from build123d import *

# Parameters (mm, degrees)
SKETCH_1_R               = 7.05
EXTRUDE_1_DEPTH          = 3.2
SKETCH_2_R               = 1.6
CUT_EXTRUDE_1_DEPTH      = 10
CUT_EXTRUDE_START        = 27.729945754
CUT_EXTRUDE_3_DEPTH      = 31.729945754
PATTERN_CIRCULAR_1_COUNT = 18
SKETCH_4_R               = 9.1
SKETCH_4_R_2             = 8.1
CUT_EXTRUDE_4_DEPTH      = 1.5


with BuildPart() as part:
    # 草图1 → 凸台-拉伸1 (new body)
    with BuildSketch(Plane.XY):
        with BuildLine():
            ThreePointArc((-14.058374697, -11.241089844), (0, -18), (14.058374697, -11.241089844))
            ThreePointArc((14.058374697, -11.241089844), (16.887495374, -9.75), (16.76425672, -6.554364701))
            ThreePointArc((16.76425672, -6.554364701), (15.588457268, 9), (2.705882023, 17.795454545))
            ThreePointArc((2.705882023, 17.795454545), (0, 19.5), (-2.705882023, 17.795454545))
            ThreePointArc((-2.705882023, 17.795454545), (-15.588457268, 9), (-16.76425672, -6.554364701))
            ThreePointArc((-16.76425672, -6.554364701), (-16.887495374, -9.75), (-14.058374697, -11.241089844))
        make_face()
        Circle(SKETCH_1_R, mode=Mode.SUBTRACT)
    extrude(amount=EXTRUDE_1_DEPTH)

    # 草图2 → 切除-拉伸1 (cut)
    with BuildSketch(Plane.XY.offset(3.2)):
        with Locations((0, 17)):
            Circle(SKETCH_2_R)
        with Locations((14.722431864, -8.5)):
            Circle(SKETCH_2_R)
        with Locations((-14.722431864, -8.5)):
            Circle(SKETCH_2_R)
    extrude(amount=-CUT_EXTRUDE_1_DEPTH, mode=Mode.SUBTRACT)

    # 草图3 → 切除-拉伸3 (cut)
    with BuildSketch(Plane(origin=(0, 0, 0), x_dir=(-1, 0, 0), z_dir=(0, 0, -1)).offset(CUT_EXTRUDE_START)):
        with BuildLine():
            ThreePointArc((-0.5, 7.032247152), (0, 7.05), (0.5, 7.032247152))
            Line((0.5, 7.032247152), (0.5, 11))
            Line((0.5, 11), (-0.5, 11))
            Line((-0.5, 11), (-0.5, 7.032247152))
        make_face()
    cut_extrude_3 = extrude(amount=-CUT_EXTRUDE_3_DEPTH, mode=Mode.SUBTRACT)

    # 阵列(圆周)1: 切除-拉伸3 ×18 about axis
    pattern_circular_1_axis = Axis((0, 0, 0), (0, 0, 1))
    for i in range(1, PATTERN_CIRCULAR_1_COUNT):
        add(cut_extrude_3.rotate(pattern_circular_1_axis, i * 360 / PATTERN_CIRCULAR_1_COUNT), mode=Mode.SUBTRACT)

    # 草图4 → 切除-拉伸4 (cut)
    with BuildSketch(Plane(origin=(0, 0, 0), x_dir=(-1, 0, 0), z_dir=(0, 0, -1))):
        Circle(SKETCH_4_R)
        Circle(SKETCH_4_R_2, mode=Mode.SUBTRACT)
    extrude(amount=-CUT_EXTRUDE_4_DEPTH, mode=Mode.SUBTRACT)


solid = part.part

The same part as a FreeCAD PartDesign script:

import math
import FreeCAD as App
import Part
import Sketcher
from FreeCAD import Vector
Q = App.Units.Quantity

doc = App.newDocument("Part")
params = doc.addObject("Spreadsheet::Sheet", "Params")
for row, (alias, value) in enumerate([
    ("sketch1_radius", "18 mm"),
    ("sketch1_radius2", "3 mm"),
    ("sketch1_diameter", "14.1 mm"),
    ("pad1_length", "3.2 mm"),
    ("sketch2_diameter", "3.2 mm"),
    ("pocket1_length", "10 mm"),
    ("sketch3_width", "1 mm"),
    ("sketch3_radius", "7.05 mm"),
    ("pocket2_length", "31.729946 mm"),
    ("sketch4_diameter", "18.2 mm"),
    ("sketch4_diameter2", "16.2 mm"),
    ("pocket3_length", "1.5 mm"),
], start=1):
    params.set(f"A{row}", alias)
    params.set(f"B{row}", "=" + value)
    params.setAlias(f"B{row}", alias)

body = doc.addObject("PartDesign::Body", "Body")

sketch1 = body.newObject("Sketcher::SketchObject", "Sketch")
sketch1.AttachmentSupport = (doc.getObject("XY_Plane"), [""])
sketch1.MapMode = "FlatFace"
sketch1.addGeometry([
    Part.ArcOfCircle(Part.Circle(Vector(0, 0, 0), Vector(0, 0, 1), 18), math.radians(-141), math.radians(-39)),
    Part.ArcOfCircle(Part.Circle(Vector(14.3, -8.2, 0), Vector(0, 0, 1), 3), math.radians(-94), math.radians(34)),
    Part.ArcOfCircle(Part.Circle(Vector(0, 0, 0), Vector(0, 0, 1), 18), math.radians(-21), math.radians(81)),
    Part.ArcOfCircle(Part.Circle(Vector(0, 16.5, 0), Vector(0, 0, 1), 3), math.radians(26), math.radians(154)),
    Part.ArcOfCircle(Part.Circle(Vector(0, 0, 0), Vector(0, 0, 1), 18), math.radians(99), math.radians(201)),
    Part.ArcOfCircle(Part.Circle(Vector(-14.3, -8.2, 0), Vector(0, 0, 1), 3), math.radians(146), math.radians(274)),
    Part.Circle(Vector(0, 0, 0), Vector(0, 0, 1), 7),
], False)
sketch1.addConstraint([
    Sketcher.Constraint("Coincident", 0, 2, 1, 1),
    Sketcher.Constraint("Coincident", 1, 2, 2, 1),
    Sketcher.Constraint("Coincident", 2, 2, 3, 1),
    Sketcher.Constraint("Coincident", 3, 2, 4, 1),
    Sketcher.Constraint("Coincident", 4, 2, 5, 1),
    Sketcher.Constraint("Coincident", 5, 2, 0, 1),
    Sketcher.Constraint("Coincident", 0, 3, -1, 1),
    Sketcher.Constraint("Coincident", 2, 3, -1, 1),
    Sketcher.Constraint("Coincident", 4, 3, -1, 1),
    Sketcher.Constraint("Coincident", 6, 3, -1, 1),
    Sketcher.Constraint("Equal", 0, 2),
    Sketcher.Constraint("Equal", 1, 3),
    Sketcher.Constraint("Equal", 2, 4),
    Sketcher.Constraint("Equal", 3, 5),
    Sketcher.Constraint("Symmetric", 1, 3, 5, 3, -2),
    Sketcher.Constraint("PointOnObject", 3, 3, -2),
    Sketcher.Constraint("Radius", 0, Q("18 mm")),
    Sketcher.Constraint("Radius", 1, Q("3 mm")),
    Sketcher.Constraint("Diameter", 6, Q("14.1 mm")),
    Sketcher.Constraint("DistanceY", -1, 1, 3, 3, Q("16.5 mm")),
    Sketcher.Constraint("DistanceY", 1, 3, -1, 1, Q("8.25 mm")),
    Sketcher.Constraint("DistanceX", -1, 1, 1, 3, Q("14.289419 mm")),
])
sketch1.setExpression("Constraints[16]", "Params.sketch1_radius")
sketch1.setExpression("Constraints[17]", "Params.sketch1_radius2")
sketch1.setExpression("Constraints[18]", "Params.sketch1_diameter")
pad1 = body.newObject("PartDesign::Pad", "Pad")
pad1.Profile = sketch1
pad1.setExpression("Length", "Params.pad1_length")

sketch2 = body.newObject("Sketcher::SketchObject", "Sketch001")
sketch2.AttachmentSupport = (doc.getObject("XY_Plane"), [""])
sketch2.MapMode = "FlatFace"
sketch2.AttachmentOffset = App.Placement(Vector(0, 0, 3.2), App.Rotation())
sketch2.addGeometry([
    Part.Circle(Vector(0, 17, 0), Vector(0, 0, 1), 1.6),
    Part.Circle(Vector(14.7, -8.5, 0), Vector(0, 0, 1), 1.6),
    Part.Circle(Vector(-14.7, -8.5, 0), Vector(0, 0, 1), 1.6),
], False)
sketch2.addConstraint([
    Sketcher.Constraint("Equal", 0, 1),
    Sketcher.Constraint("Equal", 1, 2),
    Sketcher.Constraint("Symmetric", 1, 3, 2, 3, -2),
    Sketcher.Constraint("PointOnObject", 0, 3, -2),
    Sketcher.Constraint("Diameter", 0, Q("3.2 mm")),
    Sketcher.Constraint("DistanceY", -1, 1, 0, 3, Q("17 mm")),
    Sketcher.Constraint("DistanceY", 1, 3, -1, 1, Q("8.5 mm")),
    Sketcher.Constraint("DistanceX", -1, 1, 1, 3, Q("14.722432 mm")),
])
sketch2.setExpression("Constraints[4]", "Params.sketch2_diameter")
pocket1 = body.newObject("PartDesign::Pocket", "Pocket")
pocket1.Profile = sketch2
pocket1.setExpression("Length", "Params.pocket1_length")

sketch3 = body.newObject("Sketcher::SketchObject", "Sketch002")
sketch3.AttachmentSupport = (doc.getObject("XY_Plane"), [""])
sketch3.MapMode = "FlatFace"
sketch3.AttachmentOffset = App.Placement(Vector(0, 0, -27.729946), App.Rotation())
sketch3.addGeometry([
    Part.ArcOfCircle(Part.Circle(Vector(0, 0, 0), Vector(0, 0, 1), 7.1), math.radians(85.93), math.radians(94.07)),
    Part.LineSegment(Vector(-0.5, 7, 0), Vector(-0.5, 11, 0)),
    Part.LineSegment(Vector(-0.5, 11, 0), Vector(0.5, 11, 0)),
    Part.LineSegment(Vector(0.5, 11, 0), Vector(0.5, 7, 0)),
], False)
sketch3.addConstraint([
    Sketcher.Constraint("Coincident", 0, 2, 1, 1),
    Sketcher.Constraint("Coincident", 1, 2, 2, 1),
    Sketcher.Constraint("Coincident", 2, 2, 3, 1),
    Sketcher.Constraint("Coincident", 3, 2, 0, 1),
    Sketcher.Constraint("Vertical", 1),
    Sketcher.Constraint("Horizontal", 2),
    Sketcher.Constraint("Vertical", 3),
    Sketcher.Constraint("Coincident", 0, 3, -1, 1),
    Sketcher.Constraint("Horizontal", 0, 2, 3, 2),
    Sketcher.Constraint("DistanceX", 2, 1, 2, 2, Q("1 mm")),
    Sketcher.Constraint("Radius", 0, Q("7.05 mm")),
    Sketcher.Constraint("DistanceY", -1, 1, 1, 2, Q("11 mm")),
])
sketch3.setExpression("Constraints[9]", "Params.sketch3_width")
sketch3.setExpression("Constraints[10]", "Params.sketch3_radius")
pocket2 = body.newObject("PartDesign::Pocket", "Pocket001")
pocket2.Profile = sketch3
pocket2.setExpression("Length", "Params.pocket2_length")
pocket2.Reversed = True
doc.recompute()

polarpattern = body.newObject("PartDesign::PolarPattern", "PolarPattern")
polarpattern.Originals = [pocket2]
polarpattern.Axis = (doc.getObject("Z_Axis"), [""])
polarpattern.Angle = 360
polarpattern.Occurrences = 18
body.Tip = polarpattern

sketch4 = body.newObject("Sketcher::SketchObject", "Sketch003")
sketch4.AttachmentSupport = (doc.getObject("XY_Plane"), [""])
sketch4.MapMode = "FlatFace"
sketch4.addGeometry([
    Part.Circle(Vector(0, 0, 0), Vector(0, 0, 1), 9),
    Part.Circle(Vector(0, 0, 0), Vector(0, 0, 1), 8),
], False)
sketch4.addConstraint([
    Sketcher.Constraint("Coincident", 0, 3, -1, 1),
    Sketcher.Constraint("Coincident", 1, 3, -1, 1),
    Sketcher.Constraint("Diameter", 0, Q("18.2 mm")),
    Sketcher.Constraint("Diameter", 1, Q("16.2 mm")),
])
sketch4.setExpression("Constraints[2]", "Params.sketch4_diameter")
sketch4.setExpression("Constraints[3]", "Params.sketch4_diameter2")
pocket3 = body.newObject("PartDesign::Pocket", "Pocket002")
pocket3.Profile = sketch4
pocket3.setExpression("Length", "Params.pocket3_length")
pocket3.Reversed = True

doc.recompute()
